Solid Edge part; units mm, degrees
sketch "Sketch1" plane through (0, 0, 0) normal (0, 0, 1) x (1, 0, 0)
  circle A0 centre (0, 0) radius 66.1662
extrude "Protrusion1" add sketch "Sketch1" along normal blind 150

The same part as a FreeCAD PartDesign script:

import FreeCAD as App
import Part
import Sketcher
Q = App.Units.Quantity

doc = App.newDocument("Part")
body = doc.addObject("PartDesign::Body", "Body")

sketch1 = body.newObject("Sketcher::SketchObject", "Sketch")
sketch1.AttachmentSupport = (doc.getObject("XY_Plane"), [""])
sketch1.MapMode = "FlatFace"
sketch1.addGeometry(Part.Circle(App.Vector(0, 0, 0), App.Vector(0, 0, 1), 66), False)
sketch1.addConstraint(Sketcher.Constraint("Coincident", 0, 3, -1, 1))
sketch1.addConstraint(Sketcher.Constraint("Diameter", 0, Q("132.3324 mm")))
pad1 = body.newObject("PartDesign::Pad", "Pad")
pad1.Profile = sketch1
pad1.Length = 150

doc.recompute()
